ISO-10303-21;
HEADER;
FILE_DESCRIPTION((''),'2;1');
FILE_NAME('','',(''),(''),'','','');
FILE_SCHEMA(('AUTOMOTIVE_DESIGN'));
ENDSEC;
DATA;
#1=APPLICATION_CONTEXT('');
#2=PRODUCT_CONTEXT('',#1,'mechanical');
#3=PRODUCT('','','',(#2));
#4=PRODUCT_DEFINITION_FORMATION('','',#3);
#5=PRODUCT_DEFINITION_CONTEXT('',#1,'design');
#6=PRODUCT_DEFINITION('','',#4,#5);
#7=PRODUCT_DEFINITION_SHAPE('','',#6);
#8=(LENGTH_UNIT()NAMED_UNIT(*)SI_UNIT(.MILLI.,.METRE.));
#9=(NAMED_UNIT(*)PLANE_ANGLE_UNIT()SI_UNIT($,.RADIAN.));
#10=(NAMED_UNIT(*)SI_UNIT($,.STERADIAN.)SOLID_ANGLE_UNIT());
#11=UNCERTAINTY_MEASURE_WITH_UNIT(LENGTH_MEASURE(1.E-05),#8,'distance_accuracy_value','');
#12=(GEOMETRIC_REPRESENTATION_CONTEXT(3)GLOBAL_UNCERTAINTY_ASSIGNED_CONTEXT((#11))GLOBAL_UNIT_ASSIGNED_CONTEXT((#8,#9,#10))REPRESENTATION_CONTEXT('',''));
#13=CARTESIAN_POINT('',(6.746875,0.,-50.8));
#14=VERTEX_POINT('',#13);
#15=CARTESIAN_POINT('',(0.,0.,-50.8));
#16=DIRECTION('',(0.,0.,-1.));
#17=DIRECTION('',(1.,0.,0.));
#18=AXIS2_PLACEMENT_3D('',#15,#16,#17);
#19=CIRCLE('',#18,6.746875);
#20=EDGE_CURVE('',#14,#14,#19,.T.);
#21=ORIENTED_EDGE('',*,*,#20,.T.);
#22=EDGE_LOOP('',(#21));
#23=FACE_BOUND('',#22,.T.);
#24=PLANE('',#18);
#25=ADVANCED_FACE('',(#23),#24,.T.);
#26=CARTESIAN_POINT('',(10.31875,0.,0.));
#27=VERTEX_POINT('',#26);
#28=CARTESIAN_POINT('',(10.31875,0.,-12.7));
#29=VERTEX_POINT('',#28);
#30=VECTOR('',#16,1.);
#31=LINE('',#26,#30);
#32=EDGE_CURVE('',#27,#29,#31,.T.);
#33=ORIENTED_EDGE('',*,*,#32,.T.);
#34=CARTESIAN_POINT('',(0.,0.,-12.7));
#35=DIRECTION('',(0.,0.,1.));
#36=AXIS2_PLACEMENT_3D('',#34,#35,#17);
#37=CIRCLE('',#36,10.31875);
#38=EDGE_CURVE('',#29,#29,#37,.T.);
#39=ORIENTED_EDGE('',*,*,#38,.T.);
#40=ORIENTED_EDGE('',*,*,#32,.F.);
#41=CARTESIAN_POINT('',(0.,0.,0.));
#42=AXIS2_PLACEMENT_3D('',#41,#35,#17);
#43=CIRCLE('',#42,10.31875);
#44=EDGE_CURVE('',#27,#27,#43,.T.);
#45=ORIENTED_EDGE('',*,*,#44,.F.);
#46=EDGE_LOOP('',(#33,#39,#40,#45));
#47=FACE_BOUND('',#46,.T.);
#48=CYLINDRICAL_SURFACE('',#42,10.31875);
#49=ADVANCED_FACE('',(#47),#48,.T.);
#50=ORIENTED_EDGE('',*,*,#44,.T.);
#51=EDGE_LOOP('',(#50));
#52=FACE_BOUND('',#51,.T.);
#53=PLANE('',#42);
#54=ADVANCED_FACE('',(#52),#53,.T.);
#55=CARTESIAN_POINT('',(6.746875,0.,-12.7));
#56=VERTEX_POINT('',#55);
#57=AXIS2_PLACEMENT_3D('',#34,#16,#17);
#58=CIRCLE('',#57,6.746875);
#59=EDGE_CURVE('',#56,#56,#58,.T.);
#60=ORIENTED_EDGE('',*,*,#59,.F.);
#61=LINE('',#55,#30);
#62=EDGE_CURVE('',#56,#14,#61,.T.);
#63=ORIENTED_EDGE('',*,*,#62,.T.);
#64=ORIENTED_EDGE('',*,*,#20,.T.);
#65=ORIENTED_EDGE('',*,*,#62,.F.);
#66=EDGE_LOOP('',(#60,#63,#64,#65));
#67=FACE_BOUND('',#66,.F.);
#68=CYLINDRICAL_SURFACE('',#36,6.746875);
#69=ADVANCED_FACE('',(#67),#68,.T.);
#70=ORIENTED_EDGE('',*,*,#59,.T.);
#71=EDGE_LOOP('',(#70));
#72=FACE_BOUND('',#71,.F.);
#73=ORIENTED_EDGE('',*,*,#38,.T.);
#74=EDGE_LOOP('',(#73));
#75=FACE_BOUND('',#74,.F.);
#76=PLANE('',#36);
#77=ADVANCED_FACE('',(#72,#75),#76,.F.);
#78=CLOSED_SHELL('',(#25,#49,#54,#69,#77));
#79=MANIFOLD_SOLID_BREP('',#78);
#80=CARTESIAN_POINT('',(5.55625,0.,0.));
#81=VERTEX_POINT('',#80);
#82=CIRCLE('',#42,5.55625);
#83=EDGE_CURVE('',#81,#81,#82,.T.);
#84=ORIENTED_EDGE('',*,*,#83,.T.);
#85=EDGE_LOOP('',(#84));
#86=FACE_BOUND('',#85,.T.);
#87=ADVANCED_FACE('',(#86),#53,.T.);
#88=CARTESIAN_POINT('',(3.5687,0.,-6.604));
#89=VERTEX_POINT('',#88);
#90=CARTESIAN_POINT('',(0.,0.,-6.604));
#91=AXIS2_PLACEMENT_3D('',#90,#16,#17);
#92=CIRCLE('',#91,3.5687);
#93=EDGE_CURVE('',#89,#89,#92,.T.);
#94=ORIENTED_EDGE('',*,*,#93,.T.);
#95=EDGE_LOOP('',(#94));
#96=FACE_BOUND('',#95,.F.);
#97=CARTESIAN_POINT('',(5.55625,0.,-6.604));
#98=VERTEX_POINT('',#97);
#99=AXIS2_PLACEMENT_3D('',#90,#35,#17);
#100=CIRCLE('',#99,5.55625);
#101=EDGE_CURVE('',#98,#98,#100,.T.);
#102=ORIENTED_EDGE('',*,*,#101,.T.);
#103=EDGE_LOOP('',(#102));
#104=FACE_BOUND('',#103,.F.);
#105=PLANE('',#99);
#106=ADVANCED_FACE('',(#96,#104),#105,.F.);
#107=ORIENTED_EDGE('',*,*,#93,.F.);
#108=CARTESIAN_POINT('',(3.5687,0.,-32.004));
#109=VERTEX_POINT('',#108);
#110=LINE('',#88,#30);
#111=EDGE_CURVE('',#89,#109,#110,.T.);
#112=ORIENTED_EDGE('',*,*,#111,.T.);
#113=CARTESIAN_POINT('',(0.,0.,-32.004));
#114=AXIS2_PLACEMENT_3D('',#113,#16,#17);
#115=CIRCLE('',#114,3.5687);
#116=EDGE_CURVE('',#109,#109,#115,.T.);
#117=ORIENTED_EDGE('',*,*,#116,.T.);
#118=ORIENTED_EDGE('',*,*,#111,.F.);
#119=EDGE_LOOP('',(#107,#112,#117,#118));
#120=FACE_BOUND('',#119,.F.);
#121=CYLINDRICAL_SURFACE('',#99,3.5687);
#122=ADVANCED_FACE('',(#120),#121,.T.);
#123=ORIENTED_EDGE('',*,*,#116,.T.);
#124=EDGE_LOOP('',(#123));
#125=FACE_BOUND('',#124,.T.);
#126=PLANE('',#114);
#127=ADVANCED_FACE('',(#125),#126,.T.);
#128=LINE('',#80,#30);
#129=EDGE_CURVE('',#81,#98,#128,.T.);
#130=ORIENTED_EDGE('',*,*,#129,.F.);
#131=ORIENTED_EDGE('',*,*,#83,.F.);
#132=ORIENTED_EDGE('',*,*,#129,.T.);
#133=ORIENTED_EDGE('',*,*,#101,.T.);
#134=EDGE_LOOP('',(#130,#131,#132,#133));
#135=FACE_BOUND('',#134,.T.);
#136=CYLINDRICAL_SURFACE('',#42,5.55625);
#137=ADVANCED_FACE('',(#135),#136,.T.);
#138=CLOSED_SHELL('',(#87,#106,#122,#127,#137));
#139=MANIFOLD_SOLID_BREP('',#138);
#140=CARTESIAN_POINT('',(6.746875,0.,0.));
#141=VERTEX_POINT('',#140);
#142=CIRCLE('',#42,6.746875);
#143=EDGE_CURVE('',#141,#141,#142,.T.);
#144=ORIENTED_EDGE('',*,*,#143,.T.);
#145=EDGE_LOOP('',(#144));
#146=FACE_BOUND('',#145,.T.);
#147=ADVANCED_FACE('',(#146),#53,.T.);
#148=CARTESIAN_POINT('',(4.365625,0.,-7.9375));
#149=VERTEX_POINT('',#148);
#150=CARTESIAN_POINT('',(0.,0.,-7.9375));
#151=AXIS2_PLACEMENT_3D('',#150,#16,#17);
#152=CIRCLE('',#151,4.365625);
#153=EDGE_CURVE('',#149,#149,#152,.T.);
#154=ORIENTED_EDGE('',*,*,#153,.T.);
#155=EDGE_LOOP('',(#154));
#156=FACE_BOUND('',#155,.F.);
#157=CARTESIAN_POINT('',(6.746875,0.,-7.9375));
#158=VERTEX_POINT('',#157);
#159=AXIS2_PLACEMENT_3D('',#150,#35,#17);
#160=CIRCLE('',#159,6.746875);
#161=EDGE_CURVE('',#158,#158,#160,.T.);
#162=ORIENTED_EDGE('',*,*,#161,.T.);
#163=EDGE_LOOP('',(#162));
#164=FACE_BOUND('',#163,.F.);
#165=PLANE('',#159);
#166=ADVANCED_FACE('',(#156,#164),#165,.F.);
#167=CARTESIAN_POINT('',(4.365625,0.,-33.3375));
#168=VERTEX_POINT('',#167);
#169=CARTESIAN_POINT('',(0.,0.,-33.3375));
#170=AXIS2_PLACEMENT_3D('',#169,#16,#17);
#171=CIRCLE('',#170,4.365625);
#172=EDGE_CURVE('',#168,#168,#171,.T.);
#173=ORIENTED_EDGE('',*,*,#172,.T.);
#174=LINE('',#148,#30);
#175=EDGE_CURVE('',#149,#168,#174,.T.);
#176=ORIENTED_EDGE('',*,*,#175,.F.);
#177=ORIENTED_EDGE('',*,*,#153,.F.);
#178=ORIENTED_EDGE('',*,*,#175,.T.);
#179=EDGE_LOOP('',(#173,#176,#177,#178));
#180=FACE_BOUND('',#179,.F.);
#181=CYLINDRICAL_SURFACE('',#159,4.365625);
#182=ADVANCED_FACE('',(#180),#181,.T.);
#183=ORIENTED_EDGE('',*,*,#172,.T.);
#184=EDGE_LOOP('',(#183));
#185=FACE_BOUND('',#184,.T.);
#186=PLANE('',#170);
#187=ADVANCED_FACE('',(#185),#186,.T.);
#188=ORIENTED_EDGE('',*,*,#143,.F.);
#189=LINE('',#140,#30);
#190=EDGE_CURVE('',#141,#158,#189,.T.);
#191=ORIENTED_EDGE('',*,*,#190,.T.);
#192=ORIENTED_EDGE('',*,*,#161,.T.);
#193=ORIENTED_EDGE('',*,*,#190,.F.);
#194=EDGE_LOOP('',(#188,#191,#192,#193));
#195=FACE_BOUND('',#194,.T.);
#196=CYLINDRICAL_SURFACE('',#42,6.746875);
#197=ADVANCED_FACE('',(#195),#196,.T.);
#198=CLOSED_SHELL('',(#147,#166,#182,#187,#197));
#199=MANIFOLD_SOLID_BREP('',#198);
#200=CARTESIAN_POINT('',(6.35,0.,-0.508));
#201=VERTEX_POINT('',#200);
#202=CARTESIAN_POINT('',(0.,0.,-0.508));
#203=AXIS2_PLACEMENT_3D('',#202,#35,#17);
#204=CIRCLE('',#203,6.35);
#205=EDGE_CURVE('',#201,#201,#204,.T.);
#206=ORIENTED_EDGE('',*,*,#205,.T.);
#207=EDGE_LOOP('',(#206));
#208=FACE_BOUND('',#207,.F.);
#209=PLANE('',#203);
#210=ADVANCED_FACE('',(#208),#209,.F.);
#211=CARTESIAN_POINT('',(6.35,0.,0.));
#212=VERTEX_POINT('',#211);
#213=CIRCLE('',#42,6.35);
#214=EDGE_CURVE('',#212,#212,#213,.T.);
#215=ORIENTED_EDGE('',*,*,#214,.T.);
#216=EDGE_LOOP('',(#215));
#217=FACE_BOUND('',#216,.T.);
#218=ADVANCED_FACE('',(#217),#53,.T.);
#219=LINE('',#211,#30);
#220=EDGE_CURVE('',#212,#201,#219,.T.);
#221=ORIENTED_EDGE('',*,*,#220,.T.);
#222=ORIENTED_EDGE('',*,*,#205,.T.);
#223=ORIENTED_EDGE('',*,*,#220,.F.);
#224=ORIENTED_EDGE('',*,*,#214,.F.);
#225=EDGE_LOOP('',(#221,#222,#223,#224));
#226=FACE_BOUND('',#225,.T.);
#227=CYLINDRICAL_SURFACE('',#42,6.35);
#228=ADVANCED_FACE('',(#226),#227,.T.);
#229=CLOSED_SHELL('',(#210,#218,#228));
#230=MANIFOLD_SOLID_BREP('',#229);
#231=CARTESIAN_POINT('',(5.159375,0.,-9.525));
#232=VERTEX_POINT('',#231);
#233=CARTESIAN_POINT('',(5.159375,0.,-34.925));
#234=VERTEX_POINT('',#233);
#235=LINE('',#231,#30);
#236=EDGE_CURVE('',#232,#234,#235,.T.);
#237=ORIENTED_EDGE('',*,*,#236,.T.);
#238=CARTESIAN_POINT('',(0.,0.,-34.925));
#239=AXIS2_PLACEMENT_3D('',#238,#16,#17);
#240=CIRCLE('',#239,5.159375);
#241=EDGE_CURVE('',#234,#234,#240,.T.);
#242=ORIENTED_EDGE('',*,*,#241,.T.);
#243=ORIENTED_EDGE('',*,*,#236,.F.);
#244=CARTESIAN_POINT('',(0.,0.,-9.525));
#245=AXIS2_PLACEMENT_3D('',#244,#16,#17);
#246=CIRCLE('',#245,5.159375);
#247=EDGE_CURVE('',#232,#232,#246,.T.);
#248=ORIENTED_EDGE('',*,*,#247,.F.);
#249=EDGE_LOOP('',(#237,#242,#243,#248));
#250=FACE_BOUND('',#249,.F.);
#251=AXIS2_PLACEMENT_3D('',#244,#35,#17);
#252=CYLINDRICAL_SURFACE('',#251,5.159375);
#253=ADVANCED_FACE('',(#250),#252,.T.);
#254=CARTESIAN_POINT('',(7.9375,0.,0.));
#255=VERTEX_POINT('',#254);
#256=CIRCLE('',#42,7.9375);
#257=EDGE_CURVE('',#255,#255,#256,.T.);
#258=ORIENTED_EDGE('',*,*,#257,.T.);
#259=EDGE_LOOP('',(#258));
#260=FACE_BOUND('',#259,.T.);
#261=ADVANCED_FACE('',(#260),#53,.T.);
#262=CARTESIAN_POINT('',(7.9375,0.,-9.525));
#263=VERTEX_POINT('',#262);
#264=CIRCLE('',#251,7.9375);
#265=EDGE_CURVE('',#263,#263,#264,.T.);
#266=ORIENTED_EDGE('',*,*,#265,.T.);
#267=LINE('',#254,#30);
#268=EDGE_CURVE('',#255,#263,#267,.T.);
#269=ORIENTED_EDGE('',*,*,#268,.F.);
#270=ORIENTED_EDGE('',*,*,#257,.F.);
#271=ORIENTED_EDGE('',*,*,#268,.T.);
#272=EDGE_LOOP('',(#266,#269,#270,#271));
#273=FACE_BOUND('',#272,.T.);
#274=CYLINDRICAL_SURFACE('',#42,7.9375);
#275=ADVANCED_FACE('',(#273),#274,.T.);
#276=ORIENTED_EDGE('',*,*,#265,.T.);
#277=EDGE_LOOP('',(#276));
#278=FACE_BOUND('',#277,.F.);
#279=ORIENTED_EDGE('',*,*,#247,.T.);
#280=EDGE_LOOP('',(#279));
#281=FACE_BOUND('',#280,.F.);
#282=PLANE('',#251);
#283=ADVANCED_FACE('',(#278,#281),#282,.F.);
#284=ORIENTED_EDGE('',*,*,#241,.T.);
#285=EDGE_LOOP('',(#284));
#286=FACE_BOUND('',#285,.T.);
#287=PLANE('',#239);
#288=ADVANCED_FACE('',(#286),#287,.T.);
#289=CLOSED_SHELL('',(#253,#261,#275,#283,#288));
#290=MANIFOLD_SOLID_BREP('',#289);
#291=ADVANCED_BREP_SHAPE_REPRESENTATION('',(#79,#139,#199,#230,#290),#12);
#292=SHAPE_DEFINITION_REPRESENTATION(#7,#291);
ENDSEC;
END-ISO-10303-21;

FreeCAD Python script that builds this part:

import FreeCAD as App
import Part
import Sketcher
Q = App.Units.Quantity

doc = App.newDocument("Part")
body = doc.addObject("PartDesign::Body", "Body")

sketch1 = body.newObject("Sketcher::SketchObject", "Sketch")
sketch1.AttachmentSupport = (doc.getObject("XY_Plane"), [""])
sketch1.MapMode = "FlatFace"
sketch1.addGeometry(Part.Circle(App.Vector(0, 0, 0), App.Vector(0, 0, 1), 6), False)
sketch1.addConstraint([
    Sketcher.Constraint("Coincident", 0, 3, -1, 1),
    Sketcher.Constraint("Diameter", 0, Q("0.5 in")),
])
pad1 = body.newObject("PartDesign::Pad", "Pad")
pad1.Profile = sketch1
pad1.Length = Q("0.02 in")
pad1.Reversed = True
body2 = doc.addObject("PartDesign::Body", "Body001")

sketch2 = body2.newObject("Sketcher::SketchObject", "Sketch001")
sketch2.AttachmentSupport = (doc.getObject("XY_Plane001"), [""])
sketch2.MapMode = "FlatFace"
sketch2.addGeometry(Part.Circle(App.Vector(0, 0, 0), App.Vector(0, 0, 1), 6), False)
sketch2.addConstraint([
    Sketcher.Constraint("Coincident", 0, 3, -1, 1),
    Sketcher.Constraint("Diameter", 0, Q("0.4375 in")),
])
pad2 = body2.newObject("PartDesign::Pad", "Pad001")
pad2.Profile = sketch2
pad2.Length = Q("0.26 in")
pad2.Reversed = True

sketch3 = body2.newObject("Sketcher::SketchObject", "Sketch002")
sketch3.AttachmentSupport = (doc.getObject("XY_Plane001"), [""])
sketch3.MapMode = "FlatFace"
sketch3.AttachmentOffset = App.Placement(App.Vector(0, 0, -0.26 * 25.4), App.Rotation())
sketch3.addGeometry(Part.Circle(App.Vector(0, 0, 0), App.Vector(0, 0, 1), 3.6), False)
sketch3.addConstraint([
    Sketcher.Constraint("Coincident", 0, 3, -1, 1),
    Sketcher.Constraint("Diameter", 0, Q("0.281 in")),
])
pad3 = body2.newObject("PartDesign::Pad", "Pad002")
pad3.Profile = sketch3
pad3.Length = Q("1 in")
pad3.Reversed = True
body3 = doc.addObject("PartDesign::Body", "Body002")

sketch4 = body3.newObject("Sketcher::SketchObject", "Sketch003")
sketch4.AttachmentSupport = (doc.getObject("XY_Plane002"), [""])
sketch4.MapMode = "FlatFace"
sketch4.addGeometry(Part.Circle(App.Vector(0, 0, 0), App.Vector(0, 0, 1), 7), False)
sketch4.addConstraint([
    Sketcher.Constraint("Coincident", 0, 3, -1, 1),
    Sketcher.Constraint("Diameter", 0, Q("0.53125 in")),
])
pad4 = body3.newObject("PartDesign::Pad", "Pad003")
pad4.Profile = sketch4
pad4.Length = Q("0.3125 in")
pad4.Reversed = True

sketch5 = body3.newObject("Sketcher::SketchObject", "Sketch004")
sketch5.AttachmentSupport = (doc.getObject("XY_Plane002"), [""])
sketch5.MapMode = "FlatFace"
sketch5.AttachmentOffset = App.Placement(App.Vector(0, 0, -0.3125 * 25.4), App.Rotation())
sketch5.addGeometry(Part.Circle(App.Vector(0, 0, 0), App.Vector(0, 0, 1), 4.4), False)
sketch5.addConstraint([
    Sketcher.Constraint("Coincident", 0, 3, -1, 1),
    Sketcher.Constraint("Diameter", 0, Q("0.34375 in")),
])
pad5 = body3.newObject("PartDesign::Pad", "Pad004")
pad5.Profile = sketch5
pad5.Length = Q("1 in")
pad5.Reversed = True
body4 = doc.addObject("PartDesign::Body", "Body003")

sketch6 = body4.newObject("Sketcher::SketchObject", "Sketch005")
sketch6.AttachmentSupport = (doc.getObject("XY_Plane003"), [""])
sketch6.MapMode = "FlatFace"
sketch6.addGeometry(Part.Circle(App.Vector(0, 0, 0), App.Vector(0, 0, 1), 8), False)
sketch6.addConstraint([
    Sketcher.Constraint("Coincident", 0, 3, -1, 1),
    Sketcher.Constraint("Diameter", 0, Q("0.625 in")),
])
pad6 = body4.newObject("PartDesign::Pad", "Pad005")
pad6.Profile = sketch6
pad6.Length = Q("0.375 in")
pad6.Reversed = True

sketch7 = body4.newObject("Sketcher::SketchObject", "Sketch006")
sketch7.AttachmentSupport = (doc.getObject("XY_Plane003"), [""])
sketch7.MapMode = "FlatFace"
sketch7.AttachmentOffset = App.Placement(App.Vector(0, 0, -0.375 * 25.4), App.Rotation())
sketch7.addGeometry(Part.Circle(App.Vector(0, 0, 0), App.Vector(0, 0, 1), 5), False)
sketch7.addConstraint([
    Sketcher.Constraint("Coincident", 0, 3, -1, 1),
    Sketcher.Constraint("Diameter", 0, Q("0.40625 in")),
])
pad7 = body4.newObject("PartDesign::Pad", "Pad006")
pad7.Profile = sketch7
pad7.Length = Q("1 in")
pad7.Reversed = True
body5 = doc.addObject("PartDesign::Body", "Body004")

sketch8 = body5.newObject("Sketcher::SketchObject", "Sketch007")
sketch8.AttachmentSupport = (doc.getObject("XY_Plane004"), [""])
sketch8.MapMode = "FlatFace"
sketch8.addGeometry(Part.Circle(App.Vector(0, 0, 0), App.Vector(0, 0, 1), 10), False)
sketch8.addConstraint([
    Sketcher.Constraint("Coincident", 0, 3, -1, 1),
    Sketcher.Constraint("Diameter", 0, Q("0.8125 in")),
])
pad8 = body5.newObject("PartDesign::Pad", "Pad007")
pad8.Profile = sketch8
pad8.Length = Q("0.5 in")
pad8.Reversed = True

sketch9 = body5.newObject("Sketcher::SketchObject", "Sketch008")
sketch9.AttachmentSupport = (doc.getObject("XY_Plane004"), [""])
sketch9.MapMode = "FlatFace"
sketch9.AttachmentOffset = App.Placement(App.Vector(0, 0, -0.5 * 25.4), App.Rotation())
sketch9.addGeometry(Part.Circle(App.Vector(0, 0, 0), App.Vector(0, 0, 1), 7), False)
sketch9.addConstraint([
    Sketcher.Constraint("Coincident", 0, 3, -1, 1),
    Sketcher.Constraint("Diameter", 0, Q("0.53125 in")),
])
pad9 = body5.newObject("PartDesign::Pad", "Pad008")
pad9.Profile = sketch9
pad9.Length = Q("1.5 in")
pad9.Reversed = True

doc.recompute()
